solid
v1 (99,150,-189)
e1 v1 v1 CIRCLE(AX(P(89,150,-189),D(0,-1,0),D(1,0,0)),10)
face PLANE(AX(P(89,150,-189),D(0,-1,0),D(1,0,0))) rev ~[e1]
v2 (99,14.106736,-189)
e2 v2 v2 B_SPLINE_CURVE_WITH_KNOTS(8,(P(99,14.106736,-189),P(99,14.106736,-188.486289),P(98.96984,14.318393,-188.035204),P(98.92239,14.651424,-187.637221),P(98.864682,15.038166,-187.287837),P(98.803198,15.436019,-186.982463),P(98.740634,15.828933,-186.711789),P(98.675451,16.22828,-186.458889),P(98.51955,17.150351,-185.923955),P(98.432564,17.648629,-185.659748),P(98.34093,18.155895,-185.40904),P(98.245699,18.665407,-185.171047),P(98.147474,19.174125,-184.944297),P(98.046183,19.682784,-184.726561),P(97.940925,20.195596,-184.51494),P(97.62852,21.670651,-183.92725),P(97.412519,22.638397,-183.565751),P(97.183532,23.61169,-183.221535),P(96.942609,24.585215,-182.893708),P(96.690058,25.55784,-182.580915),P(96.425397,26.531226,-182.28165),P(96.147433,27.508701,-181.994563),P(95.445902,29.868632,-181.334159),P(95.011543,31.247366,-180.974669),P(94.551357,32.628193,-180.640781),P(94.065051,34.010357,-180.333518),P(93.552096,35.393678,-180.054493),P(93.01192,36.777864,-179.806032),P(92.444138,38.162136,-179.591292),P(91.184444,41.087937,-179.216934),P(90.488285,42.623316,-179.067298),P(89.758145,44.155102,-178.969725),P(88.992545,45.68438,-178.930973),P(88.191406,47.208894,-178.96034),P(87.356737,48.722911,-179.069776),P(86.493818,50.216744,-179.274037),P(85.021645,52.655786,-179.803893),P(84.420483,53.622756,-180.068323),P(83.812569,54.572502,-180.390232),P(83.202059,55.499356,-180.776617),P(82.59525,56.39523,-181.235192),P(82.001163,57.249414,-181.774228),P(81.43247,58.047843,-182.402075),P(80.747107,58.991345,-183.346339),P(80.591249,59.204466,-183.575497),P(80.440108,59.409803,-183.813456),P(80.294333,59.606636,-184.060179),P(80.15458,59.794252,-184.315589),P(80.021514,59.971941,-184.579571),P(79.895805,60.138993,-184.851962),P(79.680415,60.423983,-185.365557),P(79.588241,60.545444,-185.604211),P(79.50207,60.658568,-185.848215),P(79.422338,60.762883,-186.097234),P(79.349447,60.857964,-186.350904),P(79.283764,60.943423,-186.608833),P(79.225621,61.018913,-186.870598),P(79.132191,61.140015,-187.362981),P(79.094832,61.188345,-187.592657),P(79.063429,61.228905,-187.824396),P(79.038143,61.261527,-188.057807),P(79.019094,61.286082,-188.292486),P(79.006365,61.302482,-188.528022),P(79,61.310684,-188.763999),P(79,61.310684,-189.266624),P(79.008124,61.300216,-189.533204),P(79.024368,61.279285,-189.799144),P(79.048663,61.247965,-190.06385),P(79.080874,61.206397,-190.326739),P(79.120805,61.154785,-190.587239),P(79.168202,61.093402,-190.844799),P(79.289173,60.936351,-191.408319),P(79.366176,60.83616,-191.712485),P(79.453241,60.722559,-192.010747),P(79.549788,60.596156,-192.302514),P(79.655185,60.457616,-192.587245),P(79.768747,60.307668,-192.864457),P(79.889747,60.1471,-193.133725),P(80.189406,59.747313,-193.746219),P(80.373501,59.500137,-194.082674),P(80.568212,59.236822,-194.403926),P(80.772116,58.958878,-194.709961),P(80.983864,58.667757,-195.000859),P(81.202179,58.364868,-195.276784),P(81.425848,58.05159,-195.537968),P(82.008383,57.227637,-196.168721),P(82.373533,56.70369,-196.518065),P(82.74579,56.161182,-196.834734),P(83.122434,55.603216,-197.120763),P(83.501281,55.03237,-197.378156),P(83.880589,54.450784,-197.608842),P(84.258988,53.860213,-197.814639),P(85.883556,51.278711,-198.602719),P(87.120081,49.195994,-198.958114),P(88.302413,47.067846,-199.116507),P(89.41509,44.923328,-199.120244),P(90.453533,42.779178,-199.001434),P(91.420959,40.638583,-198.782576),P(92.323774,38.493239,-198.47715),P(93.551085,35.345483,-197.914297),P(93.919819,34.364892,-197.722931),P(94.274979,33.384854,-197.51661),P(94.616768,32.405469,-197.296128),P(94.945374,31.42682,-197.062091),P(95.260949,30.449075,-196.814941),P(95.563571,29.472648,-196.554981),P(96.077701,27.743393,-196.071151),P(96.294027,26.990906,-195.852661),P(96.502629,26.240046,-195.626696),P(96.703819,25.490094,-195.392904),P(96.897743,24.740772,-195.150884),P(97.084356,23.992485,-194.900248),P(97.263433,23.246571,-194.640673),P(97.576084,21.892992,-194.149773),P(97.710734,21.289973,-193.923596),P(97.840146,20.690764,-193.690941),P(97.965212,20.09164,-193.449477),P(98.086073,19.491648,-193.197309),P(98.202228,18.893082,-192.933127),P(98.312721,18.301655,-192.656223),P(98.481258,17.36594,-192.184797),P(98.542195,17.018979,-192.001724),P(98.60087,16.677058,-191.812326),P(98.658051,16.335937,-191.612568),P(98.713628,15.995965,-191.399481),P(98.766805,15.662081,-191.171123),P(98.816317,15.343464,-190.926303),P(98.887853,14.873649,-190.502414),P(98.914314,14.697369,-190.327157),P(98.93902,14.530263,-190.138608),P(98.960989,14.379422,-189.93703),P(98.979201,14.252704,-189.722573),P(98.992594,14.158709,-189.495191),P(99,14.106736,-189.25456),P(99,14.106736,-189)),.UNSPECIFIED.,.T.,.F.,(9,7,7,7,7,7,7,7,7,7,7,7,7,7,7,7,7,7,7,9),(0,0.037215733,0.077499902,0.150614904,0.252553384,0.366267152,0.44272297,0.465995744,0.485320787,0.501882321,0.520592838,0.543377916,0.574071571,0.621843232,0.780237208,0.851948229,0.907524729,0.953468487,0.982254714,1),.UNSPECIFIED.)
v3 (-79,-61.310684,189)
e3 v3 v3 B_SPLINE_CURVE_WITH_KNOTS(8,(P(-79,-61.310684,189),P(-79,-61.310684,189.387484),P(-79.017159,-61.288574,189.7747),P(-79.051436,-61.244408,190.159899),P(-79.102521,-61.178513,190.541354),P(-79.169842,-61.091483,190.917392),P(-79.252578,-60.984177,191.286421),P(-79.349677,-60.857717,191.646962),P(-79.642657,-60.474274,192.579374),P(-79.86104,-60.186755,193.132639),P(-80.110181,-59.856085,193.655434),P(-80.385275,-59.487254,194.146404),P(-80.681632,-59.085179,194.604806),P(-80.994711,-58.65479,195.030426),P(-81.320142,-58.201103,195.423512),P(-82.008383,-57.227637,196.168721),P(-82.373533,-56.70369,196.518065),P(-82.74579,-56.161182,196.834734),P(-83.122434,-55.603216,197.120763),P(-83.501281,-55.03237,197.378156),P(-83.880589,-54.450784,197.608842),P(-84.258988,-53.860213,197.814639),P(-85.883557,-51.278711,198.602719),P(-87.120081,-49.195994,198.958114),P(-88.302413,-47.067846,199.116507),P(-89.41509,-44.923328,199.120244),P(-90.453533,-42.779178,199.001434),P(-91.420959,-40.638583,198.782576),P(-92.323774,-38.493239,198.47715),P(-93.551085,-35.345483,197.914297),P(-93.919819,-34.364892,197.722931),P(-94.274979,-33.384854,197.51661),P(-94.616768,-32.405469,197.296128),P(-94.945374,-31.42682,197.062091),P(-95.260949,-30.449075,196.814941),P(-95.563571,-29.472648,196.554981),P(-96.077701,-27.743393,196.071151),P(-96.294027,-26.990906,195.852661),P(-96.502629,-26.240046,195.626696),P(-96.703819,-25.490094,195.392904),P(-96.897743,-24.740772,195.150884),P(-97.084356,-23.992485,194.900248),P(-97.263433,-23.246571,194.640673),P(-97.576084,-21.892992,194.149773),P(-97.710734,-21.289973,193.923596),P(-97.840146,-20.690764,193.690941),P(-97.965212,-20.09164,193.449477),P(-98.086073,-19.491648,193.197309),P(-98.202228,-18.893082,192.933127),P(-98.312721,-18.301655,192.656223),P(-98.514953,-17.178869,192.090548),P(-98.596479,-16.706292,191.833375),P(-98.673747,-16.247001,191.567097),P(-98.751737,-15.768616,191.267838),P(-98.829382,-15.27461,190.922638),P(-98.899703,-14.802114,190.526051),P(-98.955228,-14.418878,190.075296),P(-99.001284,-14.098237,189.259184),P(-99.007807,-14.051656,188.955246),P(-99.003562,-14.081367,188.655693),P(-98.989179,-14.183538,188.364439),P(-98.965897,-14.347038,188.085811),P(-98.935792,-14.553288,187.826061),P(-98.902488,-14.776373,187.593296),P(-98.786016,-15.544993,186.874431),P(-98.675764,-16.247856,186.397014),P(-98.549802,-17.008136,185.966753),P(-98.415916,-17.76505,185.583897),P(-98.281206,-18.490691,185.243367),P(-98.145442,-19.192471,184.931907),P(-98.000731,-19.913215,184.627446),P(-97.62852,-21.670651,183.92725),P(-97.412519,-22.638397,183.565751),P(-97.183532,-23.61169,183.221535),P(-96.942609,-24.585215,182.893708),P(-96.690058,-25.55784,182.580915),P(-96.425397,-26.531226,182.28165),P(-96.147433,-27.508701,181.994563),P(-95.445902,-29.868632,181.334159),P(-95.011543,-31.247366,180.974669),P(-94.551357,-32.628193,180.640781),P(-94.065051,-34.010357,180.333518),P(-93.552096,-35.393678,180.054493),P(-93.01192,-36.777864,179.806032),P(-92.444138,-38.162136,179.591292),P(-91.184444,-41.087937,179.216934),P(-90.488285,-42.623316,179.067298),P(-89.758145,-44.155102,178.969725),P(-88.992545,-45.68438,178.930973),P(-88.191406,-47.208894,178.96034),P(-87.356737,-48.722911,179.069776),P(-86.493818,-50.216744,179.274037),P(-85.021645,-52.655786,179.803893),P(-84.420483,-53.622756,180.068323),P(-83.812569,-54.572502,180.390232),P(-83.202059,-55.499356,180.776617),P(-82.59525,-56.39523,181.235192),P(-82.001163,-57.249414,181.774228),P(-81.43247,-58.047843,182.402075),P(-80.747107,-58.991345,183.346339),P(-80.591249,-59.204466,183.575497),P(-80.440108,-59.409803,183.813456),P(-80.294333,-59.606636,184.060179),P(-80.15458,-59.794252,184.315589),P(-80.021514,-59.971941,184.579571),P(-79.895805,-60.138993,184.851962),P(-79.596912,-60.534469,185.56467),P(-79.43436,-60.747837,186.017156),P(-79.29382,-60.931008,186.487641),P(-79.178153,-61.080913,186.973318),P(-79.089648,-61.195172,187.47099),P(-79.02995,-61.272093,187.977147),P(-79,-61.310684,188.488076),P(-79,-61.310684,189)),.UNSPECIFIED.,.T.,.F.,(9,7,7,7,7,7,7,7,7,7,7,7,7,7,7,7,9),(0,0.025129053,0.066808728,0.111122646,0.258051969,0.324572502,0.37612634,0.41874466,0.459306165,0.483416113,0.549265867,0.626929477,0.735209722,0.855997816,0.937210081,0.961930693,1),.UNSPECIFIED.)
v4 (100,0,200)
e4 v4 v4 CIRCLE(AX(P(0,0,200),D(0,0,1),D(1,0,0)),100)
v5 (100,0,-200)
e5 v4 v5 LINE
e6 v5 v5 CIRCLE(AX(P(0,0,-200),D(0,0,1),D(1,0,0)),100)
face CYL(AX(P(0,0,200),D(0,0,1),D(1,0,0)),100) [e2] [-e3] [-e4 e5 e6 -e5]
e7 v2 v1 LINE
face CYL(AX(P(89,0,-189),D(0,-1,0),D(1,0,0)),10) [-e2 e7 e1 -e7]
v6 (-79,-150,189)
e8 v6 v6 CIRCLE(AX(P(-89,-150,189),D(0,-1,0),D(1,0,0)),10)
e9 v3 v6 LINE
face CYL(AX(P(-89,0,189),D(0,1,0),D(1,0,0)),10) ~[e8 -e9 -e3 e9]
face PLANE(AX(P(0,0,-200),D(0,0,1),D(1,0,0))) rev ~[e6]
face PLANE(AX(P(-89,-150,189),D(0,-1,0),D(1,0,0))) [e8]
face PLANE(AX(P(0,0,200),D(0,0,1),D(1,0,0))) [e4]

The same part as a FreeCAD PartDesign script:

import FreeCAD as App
import Part
import Sketcher

V = App.Vector

doc = App.newDocument("Part")
params = doc.addObject("Spreadsheet::Sheet", "Params")
for row, (alias, value) in enumerate([
    ("sketch1_diameter", "200 mm"),
    ("pad1_length", "400 mm"),
    ("sketch2_diameter", "20 mm"),
    ("pad2_length", "150 mm"),
    ("sketch3_diameter", "20 mm"),
    ("pad3_length", "150 mm"),
], start=1):
    params.set(f"A{row}", alias)
    params.set(f"B{row}", "=" + value)
    params.setAlias(f"B{row}", alias)

body = doc.addObject("PartDesign::Body", "Body")

# Sketch on XY plane
sketch1 = body.newObject("Sketcher::SketchObject", "Sketch")
sketch1.AttachmentSupport = (doc.getObject("XY_Plane"), [""])
sketch1.MapMode = "FlatFace"
sketch1.AttachmentOffset = App.Placement(V(0, 0, 200), App.Rotation())
sketch1.addGeometry(Part.Circle(V(0, 0, 0), V(0, 0, 1), 100), False)
sketch1.addConstraint(Sketcher.Constraint("Coincident", 0, 3, -1, 1))
sketch1.addConstraint(Sketcher.Constraint("Diameter", 0, 200.0))
sketch1.setExpression("Constraints[1]", "Params.sketch1_diameter")
pad1 = body.newObject("PartDesign::Pad", "Pad")
pad1.Profile = sketch1
pad1.setExpression("Length", "Params.pad1_length")
pad1.Reversed = True

# Sketch on XZ plane
sketch2 = body.newObject("Sketcher::SketchObject", "Sketch001")
sketch2.AttachmentSupport = (doc.getObject("XZ_Plane"), [""])
sketch2.MapMode = "FlatFace"
sketch2.addGeometry(Part.Circle(V(-89, 189, 0), V(0, 0, 1), 10), False)
sketch2.addConstraint(Sketcher.Constraint("Diameter", 0, 20.0))
sketch2.addConstraint(Sketcher.Constraint("DistanceX", 0, 3, -1, 1, 89.0))
sketch2.addConstraint(Sketcher.Constraint("DistanceY", -1, 1, 0, 3, 189.0))
sketch2.setExpression("Constraints[0]", "Params.sketch2_diameter")
pad2 = body.newObject("PartDesign::Pad", "Pad001")
pad2.Profile = sketch2
pad2.setExpression("Length", "Params.pad2_length")

# Sketch on XZ plane
sketch3 = body.newObject("Sketcher::SketchObject", "Sketch002")
sketch3.AttachmentSupport = (doc.getObject("XZ_Plane"), [""])
sketch3.MapMode = "FlatFace"
sketch3.addGeometry(Part.Circle(V(89, -189, 0), V(0, 0, 1), 10), False)
sketch3.addConstraint(Sketcher.Constraint("Diameter", 0, 20.0))
sketch3.addConstraint(Sketcher.Constraint("DistanceX", -1, 1, 0, 3, 89.0))
sketch3.addConstraint(Sketcher.Constraint("DistanceY", 0, 3, -1, 1, 189.0))
sketch3.setExpression("Constraints[0]", "Params.sketch3_diameter")
pad3 = body.newObject("PartDesign::Pad", "Pad002")
pad3.Profile = sketch3
pad3.setExpression("Length", "Params.pad3_length")
pad3.Reversed = True

doc.recompute()
